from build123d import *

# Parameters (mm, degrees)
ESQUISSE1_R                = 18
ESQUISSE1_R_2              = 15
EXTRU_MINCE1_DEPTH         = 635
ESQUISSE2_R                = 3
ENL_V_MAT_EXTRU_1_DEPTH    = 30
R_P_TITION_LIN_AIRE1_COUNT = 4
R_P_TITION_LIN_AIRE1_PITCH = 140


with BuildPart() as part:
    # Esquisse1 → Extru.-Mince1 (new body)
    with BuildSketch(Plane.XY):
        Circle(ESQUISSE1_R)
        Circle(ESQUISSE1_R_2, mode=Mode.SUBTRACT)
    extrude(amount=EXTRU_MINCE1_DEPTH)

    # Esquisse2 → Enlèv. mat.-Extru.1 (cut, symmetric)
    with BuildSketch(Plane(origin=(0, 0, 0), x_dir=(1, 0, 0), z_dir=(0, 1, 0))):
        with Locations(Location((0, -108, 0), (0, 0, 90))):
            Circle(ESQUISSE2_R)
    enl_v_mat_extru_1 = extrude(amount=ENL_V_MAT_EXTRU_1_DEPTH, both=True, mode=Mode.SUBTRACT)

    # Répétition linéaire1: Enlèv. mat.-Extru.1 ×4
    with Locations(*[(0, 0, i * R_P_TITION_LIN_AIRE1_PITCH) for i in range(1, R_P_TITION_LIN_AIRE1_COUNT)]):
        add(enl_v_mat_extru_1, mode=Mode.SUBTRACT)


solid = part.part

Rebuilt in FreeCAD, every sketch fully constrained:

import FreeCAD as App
import Part
import Sketcher

V = App.Vector

doc = App.newDocument("Part")
body = doc.addObject("PartDesign::Body", "Body")

# Sketch on XY plane
sketch1 = doc.addObject("Sketcher::SketchObject", "Sketch")
body.addObject(sketch1)
sketch1.AttachmentSupport = (doc.XY_Plane, [""])
sketch1.MapMode = "FlatFace"
sketch1.addGeometry([
    Part.Circle(V(0, 0, 0), V(0, 0, 1), 18),
    Part.Circle(V(0, 0, 0), V(0, 0, 1), 15),
], False)
sketch1.addConstraint([
    Sketcher.Constraint("Coincident", 0, 3, -1, 1),
    Sketcher.Constraint("Coincident", 1, 3, -1, 1),
    Sketcher.Constraint("Diameter", 0, 36.0),
    Sketcher.Constraint("Diameter", 1, 30.0),
])
pad1 = doc.addObject("PartDesign::Pad", "Pad")
body.addObject(pad1)
pad1.Profile = sketch1
pad1.Length = 635

# Sketch on XZ plane
sketch2 = doc.addObject("Sketcher::SketchObject", "Sketch001")
body.addObject(sketch2)
sketch2.AttachmentSupport = (doc.XZ_Plane, [""])
sketch2.MapMode = "FlatFace"
sketch2.addGeometry(Part.Circle(V(0, 108, 0), V(0, 0, 1), 3), False)
sketch2.addConstraint([
    Sketcher.Constraint("PointOnObject", 0, 3, -2),
    Sketcher.Constraint("Diameter", 0, 6.0),
    Sketcher.Constraint("DistanceY", -1, 1, 0, 3, 108.0),
])
pocket1 = doc.addObject("PartDesign::Pocket", "Pocket")
body.addObject(pocket1)
pocket1.Profile = sketch2
pocket1.Length = 60
pocket1.Midplane = True
doc.recompute()

linearpattern = doc.addObject("PartDesign::LinearPattern", "LinearPattern")
body.addObject(linearpattern)
linearpattern.Originals = [pocket1]
linearpattern.Direction = (doc.Z_Axis, [""])
linearpattern.Mode = "offset"
linearpattern.Offset = 140
linearpattern.Occurrences = 4
body.Tip = linearpattern

doc.recompute()
